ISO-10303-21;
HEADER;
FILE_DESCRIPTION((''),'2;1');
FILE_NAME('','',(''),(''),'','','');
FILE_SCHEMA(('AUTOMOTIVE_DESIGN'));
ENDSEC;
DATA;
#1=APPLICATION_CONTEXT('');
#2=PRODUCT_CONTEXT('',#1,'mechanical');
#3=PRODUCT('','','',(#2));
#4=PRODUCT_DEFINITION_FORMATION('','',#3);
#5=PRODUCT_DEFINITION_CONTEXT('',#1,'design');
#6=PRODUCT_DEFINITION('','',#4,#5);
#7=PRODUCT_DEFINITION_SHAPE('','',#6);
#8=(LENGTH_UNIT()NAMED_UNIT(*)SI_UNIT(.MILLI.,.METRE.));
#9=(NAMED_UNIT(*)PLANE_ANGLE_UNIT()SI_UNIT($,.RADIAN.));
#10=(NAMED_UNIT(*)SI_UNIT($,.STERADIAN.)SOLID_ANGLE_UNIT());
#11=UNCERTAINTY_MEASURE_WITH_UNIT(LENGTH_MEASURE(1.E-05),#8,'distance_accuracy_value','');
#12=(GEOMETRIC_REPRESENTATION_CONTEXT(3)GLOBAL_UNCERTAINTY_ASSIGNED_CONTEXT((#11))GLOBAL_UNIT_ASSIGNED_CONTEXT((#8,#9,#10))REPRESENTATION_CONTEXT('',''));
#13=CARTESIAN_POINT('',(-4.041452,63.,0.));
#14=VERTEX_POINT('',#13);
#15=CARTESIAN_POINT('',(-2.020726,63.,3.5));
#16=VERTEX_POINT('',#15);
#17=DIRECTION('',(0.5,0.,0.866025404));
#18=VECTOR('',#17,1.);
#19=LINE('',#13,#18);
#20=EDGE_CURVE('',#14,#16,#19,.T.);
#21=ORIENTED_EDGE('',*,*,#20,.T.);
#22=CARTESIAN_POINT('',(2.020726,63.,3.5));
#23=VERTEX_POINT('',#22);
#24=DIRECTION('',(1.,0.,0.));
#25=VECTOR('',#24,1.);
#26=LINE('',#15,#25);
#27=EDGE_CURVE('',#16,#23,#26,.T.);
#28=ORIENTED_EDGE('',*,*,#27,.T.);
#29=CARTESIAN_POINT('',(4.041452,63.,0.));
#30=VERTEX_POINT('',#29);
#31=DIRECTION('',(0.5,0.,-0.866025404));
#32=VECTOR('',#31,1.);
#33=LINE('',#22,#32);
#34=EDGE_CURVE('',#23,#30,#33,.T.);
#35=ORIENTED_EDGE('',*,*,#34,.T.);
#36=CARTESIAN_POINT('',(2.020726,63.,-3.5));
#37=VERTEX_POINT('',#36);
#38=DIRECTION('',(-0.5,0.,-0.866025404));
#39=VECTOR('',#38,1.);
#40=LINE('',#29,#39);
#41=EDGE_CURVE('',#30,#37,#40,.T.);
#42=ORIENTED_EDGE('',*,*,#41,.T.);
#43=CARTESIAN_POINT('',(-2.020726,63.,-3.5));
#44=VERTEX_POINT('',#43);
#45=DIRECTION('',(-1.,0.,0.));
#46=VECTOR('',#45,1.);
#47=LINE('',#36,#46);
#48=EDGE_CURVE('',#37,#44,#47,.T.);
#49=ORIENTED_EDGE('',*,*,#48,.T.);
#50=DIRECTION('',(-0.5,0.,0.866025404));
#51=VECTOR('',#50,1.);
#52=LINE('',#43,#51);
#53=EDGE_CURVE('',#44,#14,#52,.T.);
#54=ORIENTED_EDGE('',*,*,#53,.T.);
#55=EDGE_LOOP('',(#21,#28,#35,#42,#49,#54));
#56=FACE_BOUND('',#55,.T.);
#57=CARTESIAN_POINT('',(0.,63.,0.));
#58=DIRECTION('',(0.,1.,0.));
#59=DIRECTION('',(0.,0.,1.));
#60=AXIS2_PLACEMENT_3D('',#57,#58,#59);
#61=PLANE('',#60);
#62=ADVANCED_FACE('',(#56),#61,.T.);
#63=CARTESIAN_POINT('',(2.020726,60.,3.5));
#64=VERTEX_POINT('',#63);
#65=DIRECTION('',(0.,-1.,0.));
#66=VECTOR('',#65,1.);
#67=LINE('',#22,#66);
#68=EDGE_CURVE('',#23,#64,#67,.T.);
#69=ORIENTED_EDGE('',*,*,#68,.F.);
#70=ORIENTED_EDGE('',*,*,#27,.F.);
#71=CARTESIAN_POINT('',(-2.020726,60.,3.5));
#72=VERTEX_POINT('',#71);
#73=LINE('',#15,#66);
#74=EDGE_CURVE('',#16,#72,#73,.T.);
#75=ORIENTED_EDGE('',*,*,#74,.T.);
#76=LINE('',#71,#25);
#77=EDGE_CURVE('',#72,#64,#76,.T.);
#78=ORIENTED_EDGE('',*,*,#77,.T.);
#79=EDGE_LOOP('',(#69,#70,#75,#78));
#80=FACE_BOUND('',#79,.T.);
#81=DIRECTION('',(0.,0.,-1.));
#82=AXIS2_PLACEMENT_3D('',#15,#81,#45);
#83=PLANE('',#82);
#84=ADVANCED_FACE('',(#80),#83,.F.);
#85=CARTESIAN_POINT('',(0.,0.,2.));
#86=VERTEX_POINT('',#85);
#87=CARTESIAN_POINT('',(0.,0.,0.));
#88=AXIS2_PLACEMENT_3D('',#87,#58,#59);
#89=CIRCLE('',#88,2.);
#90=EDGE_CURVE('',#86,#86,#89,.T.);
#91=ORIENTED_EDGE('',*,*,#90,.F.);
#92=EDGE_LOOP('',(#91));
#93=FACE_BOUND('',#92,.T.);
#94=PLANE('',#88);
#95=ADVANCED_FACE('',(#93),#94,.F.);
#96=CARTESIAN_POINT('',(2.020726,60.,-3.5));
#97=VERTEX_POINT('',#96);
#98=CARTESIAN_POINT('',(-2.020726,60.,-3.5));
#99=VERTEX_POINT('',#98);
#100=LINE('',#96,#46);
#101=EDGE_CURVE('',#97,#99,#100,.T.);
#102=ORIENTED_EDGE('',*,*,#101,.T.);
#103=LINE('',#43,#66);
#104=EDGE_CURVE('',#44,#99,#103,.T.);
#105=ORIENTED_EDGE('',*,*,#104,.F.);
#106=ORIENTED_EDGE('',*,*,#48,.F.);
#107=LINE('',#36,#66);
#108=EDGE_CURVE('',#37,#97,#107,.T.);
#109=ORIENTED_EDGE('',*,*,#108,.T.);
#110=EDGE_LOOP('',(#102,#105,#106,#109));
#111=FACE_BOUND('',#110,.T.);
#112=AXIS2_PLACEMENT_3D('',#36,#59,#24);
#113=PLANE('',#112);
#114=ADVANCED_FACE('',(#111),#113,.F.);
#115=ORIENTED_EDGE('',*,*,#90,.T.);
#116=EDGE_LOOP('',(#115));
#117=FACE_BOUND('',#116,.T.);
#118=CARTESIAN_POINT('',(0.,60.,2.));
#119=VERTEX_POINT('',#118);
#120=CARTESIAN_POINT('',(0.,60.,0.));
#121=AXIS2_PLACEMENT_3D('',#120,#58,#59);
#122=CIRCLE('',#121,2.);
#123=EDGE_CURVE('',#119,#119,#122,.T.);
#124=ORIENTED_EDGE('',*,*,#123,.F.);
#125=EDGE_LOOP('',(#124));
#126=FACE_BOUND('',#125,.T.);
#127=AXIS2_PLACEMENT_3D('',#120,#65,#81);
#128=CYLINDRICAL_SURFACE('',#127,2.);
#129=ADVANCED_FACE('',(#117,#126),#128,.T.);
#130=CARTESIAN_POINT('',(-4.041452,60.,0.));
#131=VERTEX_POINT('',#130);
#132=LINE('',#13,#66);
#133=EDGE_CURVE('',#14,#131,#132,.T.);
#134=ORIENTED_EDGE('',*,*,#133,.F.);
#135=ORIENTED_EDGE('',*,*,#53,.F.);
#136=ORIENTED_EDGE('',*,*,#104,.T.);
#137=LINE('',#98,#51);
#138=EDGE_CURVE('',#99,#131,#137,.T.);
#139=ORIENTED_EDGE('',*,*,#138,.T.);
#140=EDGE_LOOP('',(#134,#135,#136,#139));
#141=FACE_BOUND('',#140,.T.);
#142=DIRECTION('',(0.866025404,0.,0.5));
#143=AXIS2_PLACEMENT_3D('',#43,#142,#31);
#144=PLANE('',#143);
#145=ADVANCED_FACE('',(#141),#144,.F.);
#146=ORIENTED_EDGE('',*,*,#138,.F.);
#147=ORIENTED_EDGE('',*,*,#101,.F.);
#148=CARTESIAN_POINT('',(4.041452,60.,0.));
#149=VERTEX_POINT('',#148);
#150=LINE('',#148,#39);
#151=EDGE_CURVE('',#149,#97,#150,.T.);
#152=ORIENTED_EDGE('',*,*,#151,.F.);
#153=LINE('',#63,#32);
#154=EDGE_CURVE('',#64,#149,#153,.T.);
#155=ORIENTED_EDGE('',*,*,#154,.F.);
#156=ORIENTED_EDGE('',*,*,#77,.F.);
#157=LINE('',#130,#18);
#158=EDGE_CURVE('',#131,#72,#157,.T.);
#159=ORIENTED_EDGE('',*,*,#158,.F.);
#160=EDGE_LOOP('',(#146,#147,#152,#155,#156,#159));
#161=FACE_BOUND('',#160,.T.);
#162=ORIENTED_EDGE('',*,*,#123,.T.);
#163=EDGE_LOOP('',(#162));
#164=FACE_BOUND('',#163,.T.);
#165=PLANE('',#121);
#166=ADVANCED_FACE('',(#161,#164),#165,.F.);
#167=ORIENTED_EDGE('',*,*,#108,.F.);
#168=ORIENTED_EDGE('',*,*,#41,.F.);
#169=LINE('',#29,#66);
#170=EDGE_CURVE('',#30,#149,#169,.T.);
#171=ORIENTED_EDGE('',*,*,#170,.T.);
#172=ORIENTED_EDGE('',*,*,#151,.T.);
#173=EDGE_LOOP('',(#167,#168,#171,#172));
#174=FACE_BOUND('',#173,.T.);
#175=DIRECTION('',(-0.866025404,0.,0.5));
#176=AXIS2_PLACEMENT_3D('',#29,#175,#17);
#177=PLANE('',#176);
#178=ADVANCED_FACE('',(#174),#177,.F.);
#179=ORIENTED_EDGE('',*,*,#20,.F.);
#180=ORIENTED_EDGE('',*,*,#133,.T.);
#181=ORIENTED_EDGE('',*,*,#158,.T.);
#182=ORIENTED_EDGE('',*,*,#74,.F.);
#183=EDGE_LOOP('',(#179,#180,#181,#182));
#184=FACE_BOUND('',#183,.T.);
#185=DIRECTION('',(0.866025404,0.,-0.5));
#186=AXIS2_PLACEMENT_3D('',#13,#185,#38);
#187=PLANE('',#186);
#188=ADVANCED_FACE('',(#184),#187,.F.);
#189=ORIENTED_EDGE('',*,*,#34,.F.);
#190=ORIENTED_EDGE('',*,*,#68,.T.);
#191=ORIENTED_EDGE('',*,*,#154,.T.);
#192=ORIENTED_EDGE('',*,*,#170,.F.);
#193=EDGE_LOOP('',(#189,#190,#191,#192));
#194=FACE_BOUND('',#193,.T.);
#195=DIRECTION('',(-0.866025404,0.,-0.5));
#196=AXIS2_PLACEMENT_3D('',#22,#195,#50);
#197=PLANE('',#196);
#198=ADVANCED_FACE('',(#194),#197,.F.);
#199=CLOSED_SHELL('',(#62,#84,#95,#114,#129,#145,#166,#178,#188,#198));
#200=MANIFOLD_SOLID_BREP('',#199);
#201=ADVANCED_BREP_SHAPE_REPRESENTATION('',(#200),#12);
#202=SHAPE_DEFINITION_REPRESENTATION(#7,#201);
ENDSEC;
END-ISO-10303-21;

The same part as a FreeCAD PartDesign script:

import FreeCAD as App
import Part
import Sketcher
Q = App.Units.Quantity

doc = App.newDocument("Part")
body = doc.addObject("PartDesign::Body", "Body")

# Sketch on XZ plane
sketch1 = body.newObject("Sketcher::SketchObject", "Sketch")
sketch1.AttachmentSupport = (doc.getObject("XZ_Plane"), [""])
sketch1.MapMode = "FlatFace"
sketch1.addGeometry(Part.Circle(App.Vector(0, 0, 0), App.Vector(0, 0, 1), 2), False)
sketch1.addConstraint(Sketcher.Constraint("Coincident", 0, 3, -1, 1))
sketch1.addConstraint(Sketcher.Constraint("Diameter", 0, Q("4 mm")))
pad1 = body.newObject("PartDesign::Pad", "Pad")
pad1.Profile = sketch1
pad1.Length = 60
pad1.Reversed = True

# Sketch on XZ plane
sketch2 = body.newObject("Sketcher::SketchObject", "Sketch001")
sketch2.AttachmentSupport = (doc.getObject("XZ_Plane"), [""])
sketch2.MapMode = "FlatFace"
sketch2.AttachmentOffset = App.Placement(App.Vector(0, 0, -60), App.Rotation())
sketch2.addGeometry(Part.LineSegment(App.Vector(4, 0, 0), App.Vector(2, -3.5, 0)), False)
sketch2.addGeometry(Part.LineSegment(App.Vector(2, -3.5, 0), App.Vector(-2, -3.5, 0)), False)
sketch2.addGeometry(Part.LineSegment(App.Vector(-2, -3.5, 0), App.Vector(-4, 0, 0)), False)
sketch2.addGeometry(Part.LineSegment(App.Vector(-4, 0, 0), App.Vector(-2, 3.5, 0)), False)
sketch2.addGeometry(Part.LineSegment(App.Vector(-2, 3.5, 0), App.Vector(2, 3.5, 0)), False)
sketch2.addGeometry(Part.LineSegment(App.Vector(2, 3.5, 0), App.Vector(4, 0, 0)), False)
sketch2.addConstraint(Sketcher.Constraint("Coincident", 0, 2, 1, 1))
sketch2.addConstraint(Sketcher.Constraint("Coincident", 1, 2, 2, 1))
sketch2.addConstraint(Sketcher.Constraint("Coincident", 2, 2, 3, 1))
sketch2.addConstraint(Sketcher.Constraint("Coincident", 3, 2, 4, 1))
sketch2.addConstraint(Sketcher.Constraint("Coincident", 4, 2, 5, 1))
sketch2.addConstraint(Sketcher.Constraint("Coincident", 5, 2, 0, 1))
sketch2.addConstraint(Sketcher.Constraint("Horizontal", 1))
sketch2.addConstraint(Sketcher.Constraint("Horizontal", 4))
sketch2.addConstraint(Sketcher.Constraint("Symmetric", 0, 2, 3, 2, -1, 1))
sketch2.addConstraint(Sketcher.Constraint("Symmetric", 2, 2, 5, 2, -1, 1))
sketch2.addConstraint(Sketcher.Constraint("PointOnObject", 2, 2, -1))
sketch2.addConstraint(Sketcher.Constraint("Parallel", 2, 5))
sketch2.addConstraint(Sketcher.Constraint("Vertical", 1, 2, 3, 2))
sketch2.addConstraint(Sketcher.Constraint("Angle", 0, Q("-120 deg")))
sketch2.addConstraint(Sketcher.Constraint("DistanceY", 1, 2, 3, 2, Q("7 mm")))
sketch2.addConstraint(Sketcher.Constraint("DistanceX", 1, 2, 1, 1, Q("4.041452 mm")))
pad2 = body.newObject("PartDesign::Pad", "Pad001")
pad2.Profile = sketch2
pad2.Length = 3
pad2.Reversed = True

doc.recompute()
